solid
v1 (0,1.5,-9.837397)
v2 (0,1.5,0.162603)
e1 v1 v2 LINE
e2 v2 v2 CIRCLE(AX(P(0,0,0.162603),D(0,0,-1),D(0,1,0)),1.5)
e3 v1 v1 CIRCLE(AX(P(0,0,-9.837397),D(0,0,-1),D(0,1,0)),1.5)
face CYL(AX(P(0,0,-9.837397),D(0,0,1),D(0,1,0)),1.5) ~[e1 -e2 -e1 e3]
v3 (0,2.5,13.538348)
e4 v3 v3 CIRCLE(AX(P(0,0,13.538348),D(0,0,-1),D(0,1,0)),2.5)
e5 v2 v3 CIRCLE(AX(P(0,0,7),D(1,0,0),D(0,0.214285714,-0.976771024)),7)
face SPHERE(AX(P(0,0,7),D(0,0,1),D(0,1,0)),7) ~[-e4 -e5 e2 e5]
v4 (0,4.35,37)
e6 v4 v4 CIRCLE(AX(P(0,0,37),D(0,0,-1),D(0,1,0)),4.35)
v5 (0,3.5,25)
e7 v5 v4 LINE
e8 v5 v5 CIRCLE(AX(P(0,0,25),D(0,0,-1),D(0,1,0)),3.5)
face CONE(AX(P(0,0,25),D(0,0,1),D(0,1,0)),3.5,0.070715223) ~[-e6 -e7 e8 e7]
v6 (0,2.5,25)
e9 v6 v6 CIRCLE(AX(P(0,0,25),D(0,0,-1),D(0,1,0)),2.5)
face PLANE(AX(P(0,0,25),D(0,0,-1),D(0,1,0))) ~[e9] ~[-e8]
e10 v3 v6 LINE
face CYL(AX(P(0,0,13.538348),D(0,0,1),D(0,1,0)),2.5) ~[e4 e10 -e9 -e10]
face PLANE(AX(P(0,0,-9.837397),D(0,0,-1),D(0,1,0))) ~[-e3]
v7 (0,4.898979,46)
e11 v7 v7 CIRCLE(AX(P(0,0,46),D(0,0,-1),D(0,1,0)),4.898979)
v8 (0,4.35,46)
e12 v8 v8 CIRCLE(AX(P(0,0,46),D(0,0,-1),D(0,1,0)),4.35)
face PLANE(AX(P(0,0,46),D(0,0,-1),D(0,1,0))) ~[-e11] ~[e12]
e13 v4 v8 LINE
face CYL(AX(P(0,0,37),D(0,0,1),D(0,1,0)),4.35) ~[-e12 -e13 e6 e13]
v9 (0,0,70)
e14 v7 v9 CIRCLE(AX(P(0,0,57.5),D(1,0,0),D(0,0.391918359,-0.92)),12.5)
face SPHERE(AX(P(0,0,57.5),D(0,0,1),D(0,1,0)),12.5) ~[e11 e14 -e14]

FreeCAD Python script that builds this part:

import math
import FreeCAD as App
import Part
import Sketcher
Q = App.Units.Quantity

doc = App.newDocument("Part")
body = doc.addObject("PartDesign::Body", "Body")

# Sketch on YZ plane
sketch1 = body.newObject("Sketcher::SketchObject", "Sketch")
sketch1.AttachmentSupport = (doc.getObject("YZ_Plane"), [""])
sketch1.MapMode = "FlatFace"
sketch1.addGeometry([
    Part.ArcOfCircle(Part.Circle(App.Vector(0, 57.5, 0), App.Vector(0, 0, 1), 12.5), math.radians(-66.926082), math.radians(90)),  # 0
    Part.LineSegment(App.Vector(0, 70, 0), App.Vector(0, -9.837397, 0)),  # 1
    Part.LineSegment(App.Vector(0, -9.837397, 0), App.Vector(1.5, -9.837397, 0)),  # 2
    Part.LineSegment(App.Vector(1.5, -9.837397, 0), App.Vector(1.5, 0.162603, 0)),  # 3
    Part.ArcOfCircle(Part.Circle(App.Vector(0, 7, 0), App.Vector(0, 0, 1), 7), math.radians(-77.626375), math.radians(69.075168)),  # 4
    Part.LineSegment(App.Vector(2.5, 13.538348, 0), App.Vector(2.5, 25, 0)),  # 5
    Part.LineSegment(App.Vector(2.5, 25, 0), App.Vector(3.5, 25, 0)),  # 6
    Part.LineSegment(App.Vector(3.5, 25, 0), App.Vector(4.35, 37, 0)),  # 7
    Part.LineSegment(App.Vector(4.35, 37, 0), App.Vector(4.35, 46, 0)),  # 8
    Part.LineSegment(App.Vector(4.35, 46, 0), App.Vector(4.898979, 46, 0)),  # 9
], False)
sketch1.addConstraint([
    Sketcher.Constraint("Coincident", 0, 2, 1, 1),
    Sketcher.Constraint("Coincident", 1, 2, 2, 1),
    Sketcher.Constraint("Coincident", 2, 2, 3, 1),
    Sketcher.Constraint("Coincident", 3, 2, 4, 1),
    Sketcher.Constraint("Coincident", 4, 2, 5, 1),
    Sketcher.Constraint("Coincident", 5, 2, 6, 1),
    Sketcher.Constraint("Coincident", 6, 2, 7, 1),
    Sketcher.Constraint("Coincident", 7, 2, 8, 1),
    Sketcher.Constraint("Coincident", 8, 2, 9, 1),
    Sketcher.Constraint("Coincident", 9, 2, 0, 1),
    Sketcher.Constraint("Vertical", 1),
    Sketcher.Constraint("Horizontal", 2),
    Sketcher.Constraint("Vertical", 3),
    Sketcher.Constraint("Vertical", 5),
    Sketcher.Constraint("Horizontal", 6),
    Sketcher.Constraint("Vertical", 8),
    Sketcher.Constraint("Horizontal", 9),
    Sketcher.Constraint("PointOnObject", 0, 3, -2),
    Sketcher.Constraint("PointOnObject", 4, 3, -2),
    Sketcher.Constraint("PointOnObject", 0, 2, -2),
    Sketcher.Constraint("Radius", 4, Q("7 mm")),
    Sketcher.Constraint("Radius", 0, Q("12.5 mm")),
    Sketcher.Constraint("DistanceX", 6, 1, 6, 2, Q("1 mm")),
    Sketcher.Constraint("DistanceY", 3, 1, 3, 2, Q("10 mm")),
    Sketcher.Constraint("DistanceY", 8, 1, 8, 2, Q("9 mm")),
    Sketcher.Constraint("DistanceX", 2, 1, 2, 2, Q("1.5 mm")),
    Sketcher.Constraint("DistanceY", -1, 1, 4, 3, Q("7 mm")),
    Sketcher.Constraint("DistanceY", -1, 1, 0, 2, Q("70 mm")),
    Sketcher.Constraint("DistanceY", -1, 1, 5, 2, Q("25 mm")),
    Sketcher.Constraint("DistanceY", -1, 1, 7, 2, Q("37 mm")),
    Sketcher.Constraint("DistanceX", 3, 2, 4, 2, Q("1 mm")),
    Sketcher.Constraint("DistanceX", -1, 1, 7, 2, Q("4.35 mm")),
])
revolution = body.newObject("PartDesign::Revolution", "Revolution")
revolution.Profile = sketch1
revolution.ReferenceAxis = (sketch1, ["V_Axis"])
revolution.Angle = 360

doc.recompute()
